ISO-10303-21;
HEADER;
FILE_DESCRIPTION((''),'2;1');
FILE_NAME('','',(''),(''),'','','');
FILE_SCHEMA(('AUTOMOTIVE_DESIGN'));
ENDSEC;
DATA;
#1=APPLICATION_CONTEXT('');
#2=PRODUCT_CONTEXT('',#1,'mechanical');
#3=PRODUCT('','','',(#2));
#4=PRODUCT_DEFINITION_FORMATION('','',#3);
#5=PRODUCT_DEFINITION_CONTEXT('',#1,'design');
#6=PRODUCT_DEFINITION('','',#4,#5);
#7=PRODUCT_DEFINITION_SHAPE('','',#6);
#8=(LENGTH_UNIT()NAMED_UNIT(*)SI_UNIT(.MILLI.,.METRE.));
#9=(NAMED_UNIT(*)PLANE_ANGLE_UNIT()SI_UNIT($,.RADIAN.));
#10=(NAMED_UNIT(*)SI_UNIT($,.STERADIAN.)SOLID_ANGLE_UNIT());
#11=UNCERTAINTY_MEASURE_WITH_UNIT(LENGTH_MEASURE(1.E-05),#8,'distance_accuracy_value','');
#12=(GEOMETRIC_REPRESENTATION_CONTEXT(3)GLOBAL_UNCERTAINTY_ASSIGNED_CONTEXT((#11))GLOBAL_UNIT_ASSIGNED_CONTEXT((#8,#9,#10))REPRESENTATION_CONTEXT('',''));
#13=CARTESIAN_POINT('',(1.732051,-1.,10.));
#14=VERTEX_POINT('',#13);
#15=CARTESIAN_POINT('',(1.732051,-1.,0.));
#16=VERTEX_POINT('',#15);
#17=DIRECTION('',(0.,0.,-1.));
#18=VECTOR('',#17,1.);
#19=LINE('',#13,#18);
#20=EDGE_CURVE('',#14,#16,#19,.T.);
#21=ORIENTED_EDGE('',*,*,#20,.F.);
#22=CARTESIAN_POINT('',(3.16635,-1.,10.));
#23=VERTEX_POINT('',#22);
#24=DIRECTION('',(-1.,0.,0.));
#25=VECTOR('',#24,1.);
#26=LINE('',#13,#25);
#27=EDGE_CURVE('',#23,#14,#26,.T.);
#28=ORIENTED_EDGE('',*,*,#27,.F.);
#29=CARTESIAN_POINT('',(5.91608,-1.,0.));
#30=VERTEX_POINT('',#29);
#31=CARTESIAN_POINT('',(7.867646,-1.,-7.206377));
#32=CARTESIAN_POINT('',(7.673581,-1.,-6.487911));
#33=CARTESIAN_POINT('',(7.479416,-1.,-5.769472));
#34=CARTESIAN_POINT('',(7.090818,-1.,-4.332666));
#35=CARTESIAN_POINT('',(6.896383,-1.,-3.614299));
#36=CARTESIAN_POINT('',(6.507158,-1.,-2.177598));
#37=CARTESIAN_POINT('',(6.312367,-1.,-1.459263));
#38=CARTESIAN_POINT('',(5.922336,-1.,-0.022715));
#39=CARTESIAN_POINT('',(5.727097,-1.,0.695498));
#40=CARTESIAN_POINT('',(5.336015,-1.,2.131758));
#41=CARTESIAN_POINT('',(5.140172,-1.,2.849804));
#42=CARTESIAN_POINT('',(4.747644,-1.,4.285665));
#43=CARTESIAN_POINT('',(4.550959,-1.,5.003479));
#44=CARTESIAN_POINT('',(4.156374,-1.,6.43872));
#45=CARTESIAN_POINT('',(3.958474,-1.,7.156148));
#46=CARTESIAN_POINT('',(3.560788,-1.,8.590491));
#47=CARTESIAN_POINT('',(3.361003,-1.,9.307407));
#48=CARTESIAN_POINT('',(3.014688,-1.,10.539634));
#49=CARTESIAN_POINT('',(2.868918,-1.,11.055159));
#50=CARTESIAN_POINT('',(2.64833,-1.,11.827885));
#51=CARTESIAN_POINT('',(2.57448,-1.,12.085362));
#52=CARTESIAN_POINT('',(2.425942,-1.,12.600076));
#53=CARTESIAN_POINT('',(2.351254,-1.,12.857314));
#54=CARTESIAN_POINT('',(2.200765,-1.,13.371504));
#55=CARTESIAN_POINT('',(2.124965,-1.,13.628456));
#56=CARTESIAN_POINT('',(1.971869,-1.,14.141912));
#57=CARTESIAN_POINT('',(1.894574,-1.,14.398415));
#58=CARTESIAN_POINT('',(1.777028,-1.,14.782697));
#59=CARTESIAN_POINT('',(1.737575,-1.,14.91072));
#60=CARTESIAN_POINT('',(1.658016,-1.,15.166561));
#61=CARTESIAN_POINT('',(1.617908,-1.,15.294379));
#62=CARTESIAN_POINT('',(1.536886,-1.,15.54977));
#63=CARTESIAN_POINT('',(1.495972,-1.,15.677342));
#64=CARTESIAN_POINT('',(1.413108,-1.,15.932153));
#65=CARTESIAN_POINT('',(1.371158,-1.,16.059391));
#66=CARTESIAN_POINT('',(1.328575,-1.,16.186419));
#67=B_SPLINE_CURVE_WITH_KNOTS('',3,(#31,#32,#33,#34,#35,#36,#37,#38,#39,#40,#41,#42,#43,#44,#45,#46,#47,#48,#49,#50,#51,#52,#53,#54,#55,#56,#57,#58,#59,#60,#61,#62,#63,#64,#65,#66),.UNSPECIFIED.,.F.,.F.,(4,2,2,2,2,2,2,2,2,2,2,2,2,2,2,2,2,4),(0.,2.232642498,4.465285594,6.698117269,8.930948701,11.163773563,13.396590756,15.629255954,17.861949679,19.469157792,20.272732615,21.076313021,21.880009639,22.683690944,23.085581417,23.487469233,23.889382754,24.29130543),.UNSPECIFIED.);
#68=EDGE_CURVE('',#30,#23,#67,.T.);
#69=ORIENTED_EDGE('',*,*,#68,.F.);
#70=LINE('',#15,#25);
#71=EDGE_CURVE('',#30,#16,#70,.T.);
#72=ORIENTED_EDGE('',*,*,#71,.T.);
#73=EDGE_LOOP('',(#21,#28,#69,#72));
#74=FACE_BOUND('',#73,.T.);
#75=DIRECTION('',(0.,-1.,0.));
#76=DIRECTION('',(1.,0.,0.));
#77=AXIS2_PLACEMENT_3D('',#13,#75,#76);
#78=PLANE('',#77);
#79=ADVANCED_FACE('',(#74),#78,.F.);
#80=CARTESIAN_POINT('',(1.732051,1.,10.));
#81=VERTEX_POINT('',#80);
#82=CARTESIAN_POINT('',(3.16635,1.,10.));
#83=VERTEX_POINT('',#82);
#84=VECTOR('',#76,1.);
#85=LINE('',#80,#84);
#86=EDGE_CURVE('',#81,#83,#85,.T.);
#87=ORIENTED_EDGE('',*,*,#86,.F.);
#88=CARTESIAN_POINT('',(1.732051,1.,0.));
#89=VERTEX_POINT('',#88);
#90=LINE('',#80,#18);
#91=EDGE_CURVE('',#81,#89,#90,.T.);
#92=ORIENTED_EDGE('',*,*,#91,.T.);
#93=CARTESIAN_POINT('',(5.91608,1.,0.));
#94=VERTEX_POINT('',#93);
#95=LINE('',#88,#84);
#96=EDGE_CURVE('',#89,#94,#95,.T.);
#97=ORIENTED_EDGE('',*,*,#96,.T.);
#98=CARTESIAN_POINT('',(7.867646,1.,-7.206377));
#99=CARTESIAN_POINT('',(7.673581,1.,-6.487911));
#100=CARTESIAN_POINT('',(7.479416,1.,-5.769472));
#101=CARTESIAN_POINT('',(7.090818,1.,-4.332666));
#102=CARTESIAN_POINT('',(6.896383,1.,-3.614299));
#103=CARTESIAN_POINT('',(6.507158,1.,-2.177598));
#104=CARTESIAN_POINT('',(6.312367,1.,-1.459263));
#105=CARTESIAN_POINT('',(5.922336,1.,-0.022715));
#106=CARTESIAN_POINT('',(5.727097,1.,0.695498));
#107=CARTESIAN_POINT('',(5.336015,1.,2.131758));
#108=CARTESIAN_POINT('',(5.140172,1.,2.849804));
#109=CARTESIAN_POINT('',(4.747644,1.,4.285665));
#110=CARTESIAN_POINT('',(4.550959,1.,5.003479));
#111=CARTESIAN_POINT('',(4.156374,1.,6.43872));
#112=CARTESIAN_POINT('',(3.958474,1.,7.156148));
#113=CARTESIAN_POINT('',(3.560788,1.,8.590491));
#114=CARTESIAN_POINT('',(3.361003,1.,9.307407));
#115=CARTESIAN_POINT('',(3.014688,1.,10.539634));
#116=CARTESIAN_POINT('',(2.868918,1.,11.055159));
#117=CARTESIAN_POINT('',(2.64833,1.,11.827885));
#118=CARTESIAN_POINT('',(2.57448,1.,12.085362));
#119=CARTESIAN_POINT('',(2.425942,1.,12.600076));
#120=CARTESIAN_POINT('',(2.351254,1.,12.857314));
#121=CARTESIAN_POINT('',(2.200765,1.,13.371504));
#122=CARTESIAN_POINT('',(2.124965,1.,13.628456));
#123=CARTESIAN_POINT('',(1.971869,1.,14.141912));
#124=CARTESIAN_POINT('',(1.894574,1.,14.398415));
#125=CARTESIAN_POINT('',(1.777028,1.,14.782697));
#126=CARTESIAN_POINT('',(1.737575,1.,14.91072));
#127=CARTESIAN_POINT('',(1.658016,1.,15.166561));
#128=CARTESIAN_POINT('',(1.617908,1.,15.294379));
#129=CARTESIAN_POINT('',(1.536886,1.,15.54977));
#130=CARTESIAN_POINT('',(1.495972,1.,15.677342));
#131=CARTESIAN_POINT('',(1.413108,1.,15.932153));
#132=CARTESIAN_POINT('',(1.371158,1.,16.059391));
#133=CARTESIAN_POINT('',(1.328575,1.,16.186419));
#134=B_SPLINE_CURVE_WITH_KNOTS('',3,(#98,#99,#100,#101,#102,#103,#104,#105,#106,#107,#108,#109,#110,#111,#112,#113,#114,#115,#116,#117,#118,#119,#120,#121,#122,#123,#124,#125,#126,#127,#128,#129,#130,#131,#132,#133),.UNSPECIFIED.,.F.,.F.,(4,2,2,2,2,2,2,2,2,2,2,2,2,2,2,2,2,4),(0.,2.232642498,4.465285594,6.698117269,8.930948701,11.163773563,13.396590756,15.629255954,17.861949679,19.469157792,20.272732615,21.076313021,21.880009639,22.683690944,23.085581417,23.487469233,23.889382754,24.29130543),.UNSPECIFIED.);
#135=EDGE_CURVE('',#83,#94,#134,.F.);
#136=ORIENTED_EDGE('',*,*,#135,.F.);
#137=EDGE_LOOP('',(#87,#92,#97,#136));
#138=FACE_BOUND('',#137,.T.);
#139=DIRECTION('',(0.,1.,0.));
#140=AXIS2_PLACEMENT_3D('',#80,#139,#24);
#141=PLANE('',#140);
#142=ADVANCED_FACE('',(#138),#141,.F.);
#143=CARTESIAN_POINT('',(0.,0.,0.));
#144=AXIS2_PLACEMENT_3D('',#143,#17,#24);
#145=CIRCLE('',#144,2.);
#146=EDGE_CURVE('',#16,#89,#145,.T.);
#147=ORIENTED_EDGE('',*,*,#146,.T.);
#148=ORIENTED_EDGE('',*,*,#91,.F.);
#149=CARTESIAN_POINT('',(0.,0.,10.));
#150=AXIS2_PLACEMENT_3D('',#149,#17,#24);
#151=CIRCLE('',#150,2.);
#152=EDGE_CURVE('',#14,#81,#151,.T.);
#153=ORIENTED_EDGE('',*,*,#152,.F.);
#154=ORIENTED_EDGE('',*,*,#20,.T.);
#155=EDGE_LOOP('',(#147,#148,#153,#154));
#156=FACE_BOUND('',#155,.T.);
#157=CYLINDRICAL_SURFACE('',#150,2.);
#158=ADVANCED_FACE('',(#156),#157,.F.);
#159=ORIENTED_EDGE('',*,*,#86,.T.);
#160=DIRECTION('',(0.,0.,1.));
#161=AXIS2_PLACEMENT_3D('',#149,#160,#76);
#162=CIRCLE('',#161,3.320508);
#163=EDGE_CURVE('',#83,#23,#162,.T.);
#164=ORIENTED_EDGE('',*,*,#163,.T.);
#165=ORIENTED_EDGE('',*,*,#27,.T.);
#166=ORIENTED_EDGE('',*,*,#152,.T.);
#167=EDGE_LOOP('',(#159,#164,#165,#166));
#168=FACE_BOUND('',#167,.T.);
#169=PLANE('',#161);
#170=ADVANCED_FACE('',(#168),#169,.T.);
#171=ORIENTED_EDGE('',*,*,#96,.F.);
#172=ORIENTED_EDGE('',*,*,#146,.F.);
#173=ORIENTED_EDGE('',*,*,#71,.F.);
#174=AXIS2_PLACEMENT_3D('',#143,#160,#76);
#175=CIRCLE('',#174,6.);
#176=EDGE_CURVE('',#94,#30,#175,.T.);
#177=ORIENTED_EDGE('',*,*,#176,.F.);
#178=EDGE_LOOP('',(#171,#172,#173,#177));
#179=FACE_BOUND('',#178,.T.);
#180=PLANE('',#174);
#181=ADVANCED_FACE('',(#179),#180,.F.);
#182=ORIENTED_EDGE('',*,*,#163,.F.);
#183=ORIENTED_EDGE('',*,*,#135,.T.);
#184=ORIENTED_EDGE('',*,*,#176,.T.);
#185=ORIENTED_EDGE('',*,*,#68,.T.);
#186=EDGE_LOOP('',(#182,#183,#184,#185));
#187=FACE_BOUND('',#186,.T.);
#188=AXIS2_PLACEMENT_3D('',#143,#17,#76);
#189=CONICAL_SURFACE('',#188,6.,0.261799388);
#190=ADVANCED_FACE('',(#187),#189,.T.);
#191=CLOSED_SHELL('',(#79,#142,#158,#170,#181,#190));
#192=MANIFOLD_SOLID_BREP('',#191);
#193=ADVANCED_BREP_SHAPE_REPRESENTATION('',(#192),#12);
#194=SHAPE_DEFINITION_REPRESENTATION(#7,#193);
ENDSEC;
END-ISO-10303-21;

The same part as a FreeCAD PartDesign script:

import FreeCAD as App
import Part
import Sketcher
from FreeCAD import Vector
Q = App.Units.Quantity

doc = App.newDocument("Part")
params = doc.addObject("Spreadsheet::Sheet", "Params")
for row, (alias, value) in enumerate([
    ("sketch1_diameter", "12 mm"),
    ("pad1_length", "10 mm"),
    ("pad1_taper", "-15 deg"),
    ("sketch2_diameter", "4 mm"),
    ("sketch3_height", "2 mm"),
], start=1):
    params.set(f"A{row}", alias)
    params.set(f"B{row}", "=" + value)
    params.setAlias(f"B{row}", alias)

body = doc.addObject("PartDesign::Body", "Body")

# Sketch on XY plane
sketch1 = body.newObject("Sketcher::SketchObject", "Sketch")
sketch1.AttachmentSupport = (doc.getObject("XY_Plane"), [""])
sketch1.MapMode = "FlatFace"
sketch1.addGeometry(Part.Circle(Vector(0, 0, 0), Vector(0, 0, 1), 6), False)
sketch1.addConstraint([
    Sketcher.Constraint("Coincident", 0, 3, -1, 1),
    Sketcher.Constraint("Diameter", 0, Q("12 mm")),
])
sketch1.setExpression("Constraints[1]", "Params.sketch1_diameter")
pad1 = body.newObject("PartDesign::Pad", "Pad")
pad1.Profile = sketch1
pad1.setExpression("Length", "Params.pad1_length")
pad1.setExpression("TaperAngle", "Params.pad1_taper")

# Sketch on XY plane
sketch2 = body.newObject("Sketcher::SketchObject", "Sketch001")
sketch2.AttachmentSupport = (doc.getObject("XY_Plane"), [""])
sketch2.MapMode = "FlatFace"
sketch2.addGeometry(Part.Circle(Vector(0, 0, 0), Vector(0, 0, 1), 2), False)
sketch2.addConstraint([
    Sketcher.Constraint("Coincident", 0, 3, -1, 1),
    Sketcher.Constraint("Diameter", 0, Q("4 mm")),
])
sketch2.setExpression("Constraints[1]", "Params.sketch2_diameter")
pocket1 = body.newObject("PartDesign::Pocket", "Pocket")
pocket1.Profile = sketch2
pocket1.Type = "ThroughAll"
pocket1.Reversed = True

# Sketch on XY plane
sketch3 = body.newObject("Sketcher::SketchObject", "Sketch002")
sketch3.AttachmentSupport = (doc.getObject("XY_Plane"), [""])
sketch3.MapMode = "FlatFace"
sketch3.addGeometry([
    Part.LineSegment(Vector(6, 1, 0), Vector(6, -1, 0)),
    Part.LineSegment(Vector(6, -1, 0), Vector(1.7, -1, 0)),
    Part.LineSegment(Vector(1.7, -1, 0), Vector(1.7, 1, 0)),
    Part.LineSegment(Vector(1.7, 1, 0), Vector(6, 1, 0)),
], False)
sketch3.addConstraint([
    Sketcher.Constraint("Coincident", 0, 2, 1, 1),
    Sketcher.Constraint("Coincident", 1, 2, 2, 1),
    Sketcher.Constraint("Coincident", 2, 2, 3, 1),
    Sketcher.Constraint("Coincident", 3, 2, 0, 1),
    Sketcher.Constraint("Vertical", 0),
    Sketcher.Constraint("Horizontal", 1),
    Sketcher.Constraint("Vertical", 2),
    Sketcher.Constraint("Horizontal", 3),
    Sketcher.Constraint("DistanceY", 0, 2, 0, 1, Q("2 mm")),
    Sketcher.Constraint("DistanceX", -1, 1, 0, 2, Q("6 mm")),
    Sketcher.Constraint("DistanceY", 0, 2, -1, 1, Q("1 mm")),
    Sketcher.Constraint("DistanceX", 1, 2, 1, 1, Q("4.267949 mm")),
])
sketch3.setExpression("Constraints[8]", "Params.sketch3_height")
pocket2 = body.newObject("PartDesign::Pocket", "Pocket001")
pocket2.Profile = sketch3
pocket2.Type = "ThroughAll"
pocket2.Reversed = True

doc.recompute()
